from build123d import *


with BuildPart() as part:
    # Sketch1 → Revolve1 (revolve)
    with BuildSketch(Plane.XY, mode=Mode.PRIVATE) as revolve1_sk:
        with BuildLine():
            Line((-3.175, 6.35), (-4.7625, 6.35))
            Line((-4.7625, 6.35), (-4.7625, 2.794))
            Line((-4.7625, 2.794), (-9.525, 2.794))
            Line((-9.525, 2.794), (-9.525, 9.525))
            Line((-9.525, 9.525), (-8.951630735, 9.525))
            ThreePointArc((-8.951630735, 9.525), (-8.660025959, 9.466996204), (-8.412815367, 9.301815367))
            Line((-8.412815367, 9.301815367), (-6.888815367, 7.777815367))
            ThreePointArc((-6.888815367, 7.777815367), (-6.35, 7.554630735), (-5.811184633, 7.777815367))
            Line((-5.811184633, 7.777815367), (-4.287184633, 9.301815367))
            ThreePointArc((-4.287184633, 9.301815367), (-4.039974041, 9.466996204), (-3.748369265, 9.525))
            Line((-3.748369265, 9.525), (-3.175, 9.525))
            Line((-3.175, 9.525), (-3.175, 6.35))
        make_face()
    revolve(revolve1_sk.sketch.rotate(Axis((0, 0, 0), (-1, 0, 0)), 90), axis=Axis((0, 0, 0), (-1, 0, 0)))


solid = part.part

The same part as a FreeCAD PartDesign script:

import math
import FreeCAD as App
import Part
import Sketcher

V = App.Vector
Q = App.Units.Quantity

doc = App.newDocument("Part")
body = doc.addObject("PartDesign::Body", "Body")

sketch1 = body.newObject("Sketcher::SketchObject", "Sketch")
sketch1.AttachmentSupport = (doc.getObject("XY_Plane"), [""])
sketch1.MapMode = "FlatFace"
sketch1.addGeometry(Part.LineSegment(V(-4.7625, 6.35, 0), V(-3.175, 6.35, 0)), False)
sketch1.addGeometry(Part.LineSegment(V(-3.175, 6.35, 0), V(-3.175, 9.525, 0)), False)
sketch1.addGeometry(Part.LineSegment(V(-3.175, 9.525, 0), V(-3.748369, 9.525, 0)), False)
sketch1.addGeometry(Part.ArcOfCircle(Part.Circle(V(-3.748369, 8.763, 0), V(0, 0, 1), 0.762), math.radians(90), math.radians(135)), False)
sketch1.addGeometry(Part.LineSegment(V(-4.287185, 9.301815, 0), V(-5.811185, 7.777815, 0)), False)
sketch1.addGeometry(Part.ArcOfCircle(Part.Circle(V(-6.35, 8.316631, 0), V(0, 0, 1), 0.762), math.radians(-135), math.radians(-45)), False)
sketch1.addGeometry(Part.LineSegment(V(-6.888815, 7.777815, 0), V(-8.412815, 9.301815, 0)), False)
sketch1.addGeometry(Part.ArcOfCircle(Part.Circle(V(-8.951631, 8.763, 0), V(0, 0, 1), 0.762), math.radians(45), math.radians(90)), False)
sketch1.addGeometry(Part.LineSegment(V(-8.951631, 9.525, 0), V(-9.525, 9.525, 0)), False)
sketch1.addGeometry(Part.LineSegment(V(-9.525, 9.525, 0), V(-9.525, 2.794, 0)), False)
sketch1.addGeometry(Part.LineSegment(V(-9.525, 2.794, 0), V(-4.7625, 2.794, 0)), False)
sketch1.addGeometry(Part.LineSegment(V(-4.7625, 2.794, 0), V(-4.7625, 6.35, 0)), False)
sketch1.addConstraint(Sketcher.Constraint("Coincident", 0, 2, 1, 1))
sketch1.addConstraint(Sketcher.Constraint("Coincident", 1, 2, 2, 1))
sketch1.addConstraint(Sketcher.Constraint("Tangent", 2, 2, 3, 1))
sketch1.addConstraint(Sketcher.Constraint("Tangent", 3, 2, 4, 1))
sketch1.addConstraint(Sketcher.Constraint("Tangent", 4, 2, 5, 2))
sketch1.addConstraint(Sketcher.Constraint("Tangent", 5, 1, 6, 1))
sketch1.addConstraint(Sketcher.Constraint("Tangent", 6, 2, 7, 1))
sketch1.addConstraint(Sketcher.Constraint("Tangent", 7, 2, 8, 1))
sketch1.addConstraint(Sketcher.Constraint("Coincident", 8, 2, 9, 1))
sketch1.addConstraint(Sketcher.Constraint("Coincident", 9, 2, 10, 1))
sketch1.addConstraint(Sketcher.Constraint("Coincident", 10, 2, 11, 1))
sketch1.addConstraint(Sketcher.Constraint("Coincident", 11, 2, 0, 1))
sketch1.addConstraint(Sketcher.Constraint("Horizontal", 0))
sketch1.addConstraint(Sketcher.Constraint("Vertical", 1))
sketch1.addConstraint(Sketcher.Constraint("Horizontal", 2))
sketch1.addConstraint(Sketcher.Constraint("Horizontal", 8))
sketch1.addConstraint(Sketcher.Constraint("Vertical", 9))
sketch1.addConstraint(Sketcher.Constraint("Horizontal", 10))
sketch1.addConstraint(Sketcher.Constraint("Vertical", 11))
sketch1.addConstraint(Sketcher.Constraint("Equal", 3, 5))
sketch1.addConstraint(Sketcher.Constraint("Equal", 5, 7))
sketch1.addConstraint(Sketcher.Constraint("Perpendicular", 4, 6))
sketch1.addConstraint(Sketcher.Constraint("Horizontal", 3, 3, 7, 3))
sketch1.addConstraint(Sketcher.Constraint("Horizontal", 4, 2, 5, 1))
sketch1.addConstraint(Sketcher.Constraint("Equal", 2, 8))
sketch1.addConstraint(Sketcher.Constraint("Radius", 3, Q("0.03 in")))
sketch1.addConstraint(Sketcher.Constraint("DistanceY", 11, 1, 11, 2, Q("0.14 in")))
sketch1.addConstraint(Sketcher.Constraint("DistanceX", 0, 1, 0, 2, Q("0.0625 in")))
sketch1.addConstraint(Sketcher.Constraint("DistanceX", 10, 1, 10, 2, Q("0.1875 in")))
sketch1.addConstraint(Sketcher.Constraint("DistanceY", 1, 1, 1, 2, Q("0.125 in")))
sketch1.addConstraint(Sketcher.Constraint("DistanceX", 5, 3, -1, 1, Q("0.25 in")))
sketch1.addConstraint(Sketcher.Constraint("DistanceY", -1, 1, 0, 2, Q("0.25 in")))
sketch1.addConstraint(Sketcher.Constraint("DistanceX", 4, 2, 3, 2, Q("0.06 in")))
revolution = body.newObject("PartDesign::Revolution", "Revolution")
revolution.Profile = sketch1
revolution.ReferenceAxis = (sketch1, ["H_Axis"])
revolution.Angle = 360

doc.recompute()
